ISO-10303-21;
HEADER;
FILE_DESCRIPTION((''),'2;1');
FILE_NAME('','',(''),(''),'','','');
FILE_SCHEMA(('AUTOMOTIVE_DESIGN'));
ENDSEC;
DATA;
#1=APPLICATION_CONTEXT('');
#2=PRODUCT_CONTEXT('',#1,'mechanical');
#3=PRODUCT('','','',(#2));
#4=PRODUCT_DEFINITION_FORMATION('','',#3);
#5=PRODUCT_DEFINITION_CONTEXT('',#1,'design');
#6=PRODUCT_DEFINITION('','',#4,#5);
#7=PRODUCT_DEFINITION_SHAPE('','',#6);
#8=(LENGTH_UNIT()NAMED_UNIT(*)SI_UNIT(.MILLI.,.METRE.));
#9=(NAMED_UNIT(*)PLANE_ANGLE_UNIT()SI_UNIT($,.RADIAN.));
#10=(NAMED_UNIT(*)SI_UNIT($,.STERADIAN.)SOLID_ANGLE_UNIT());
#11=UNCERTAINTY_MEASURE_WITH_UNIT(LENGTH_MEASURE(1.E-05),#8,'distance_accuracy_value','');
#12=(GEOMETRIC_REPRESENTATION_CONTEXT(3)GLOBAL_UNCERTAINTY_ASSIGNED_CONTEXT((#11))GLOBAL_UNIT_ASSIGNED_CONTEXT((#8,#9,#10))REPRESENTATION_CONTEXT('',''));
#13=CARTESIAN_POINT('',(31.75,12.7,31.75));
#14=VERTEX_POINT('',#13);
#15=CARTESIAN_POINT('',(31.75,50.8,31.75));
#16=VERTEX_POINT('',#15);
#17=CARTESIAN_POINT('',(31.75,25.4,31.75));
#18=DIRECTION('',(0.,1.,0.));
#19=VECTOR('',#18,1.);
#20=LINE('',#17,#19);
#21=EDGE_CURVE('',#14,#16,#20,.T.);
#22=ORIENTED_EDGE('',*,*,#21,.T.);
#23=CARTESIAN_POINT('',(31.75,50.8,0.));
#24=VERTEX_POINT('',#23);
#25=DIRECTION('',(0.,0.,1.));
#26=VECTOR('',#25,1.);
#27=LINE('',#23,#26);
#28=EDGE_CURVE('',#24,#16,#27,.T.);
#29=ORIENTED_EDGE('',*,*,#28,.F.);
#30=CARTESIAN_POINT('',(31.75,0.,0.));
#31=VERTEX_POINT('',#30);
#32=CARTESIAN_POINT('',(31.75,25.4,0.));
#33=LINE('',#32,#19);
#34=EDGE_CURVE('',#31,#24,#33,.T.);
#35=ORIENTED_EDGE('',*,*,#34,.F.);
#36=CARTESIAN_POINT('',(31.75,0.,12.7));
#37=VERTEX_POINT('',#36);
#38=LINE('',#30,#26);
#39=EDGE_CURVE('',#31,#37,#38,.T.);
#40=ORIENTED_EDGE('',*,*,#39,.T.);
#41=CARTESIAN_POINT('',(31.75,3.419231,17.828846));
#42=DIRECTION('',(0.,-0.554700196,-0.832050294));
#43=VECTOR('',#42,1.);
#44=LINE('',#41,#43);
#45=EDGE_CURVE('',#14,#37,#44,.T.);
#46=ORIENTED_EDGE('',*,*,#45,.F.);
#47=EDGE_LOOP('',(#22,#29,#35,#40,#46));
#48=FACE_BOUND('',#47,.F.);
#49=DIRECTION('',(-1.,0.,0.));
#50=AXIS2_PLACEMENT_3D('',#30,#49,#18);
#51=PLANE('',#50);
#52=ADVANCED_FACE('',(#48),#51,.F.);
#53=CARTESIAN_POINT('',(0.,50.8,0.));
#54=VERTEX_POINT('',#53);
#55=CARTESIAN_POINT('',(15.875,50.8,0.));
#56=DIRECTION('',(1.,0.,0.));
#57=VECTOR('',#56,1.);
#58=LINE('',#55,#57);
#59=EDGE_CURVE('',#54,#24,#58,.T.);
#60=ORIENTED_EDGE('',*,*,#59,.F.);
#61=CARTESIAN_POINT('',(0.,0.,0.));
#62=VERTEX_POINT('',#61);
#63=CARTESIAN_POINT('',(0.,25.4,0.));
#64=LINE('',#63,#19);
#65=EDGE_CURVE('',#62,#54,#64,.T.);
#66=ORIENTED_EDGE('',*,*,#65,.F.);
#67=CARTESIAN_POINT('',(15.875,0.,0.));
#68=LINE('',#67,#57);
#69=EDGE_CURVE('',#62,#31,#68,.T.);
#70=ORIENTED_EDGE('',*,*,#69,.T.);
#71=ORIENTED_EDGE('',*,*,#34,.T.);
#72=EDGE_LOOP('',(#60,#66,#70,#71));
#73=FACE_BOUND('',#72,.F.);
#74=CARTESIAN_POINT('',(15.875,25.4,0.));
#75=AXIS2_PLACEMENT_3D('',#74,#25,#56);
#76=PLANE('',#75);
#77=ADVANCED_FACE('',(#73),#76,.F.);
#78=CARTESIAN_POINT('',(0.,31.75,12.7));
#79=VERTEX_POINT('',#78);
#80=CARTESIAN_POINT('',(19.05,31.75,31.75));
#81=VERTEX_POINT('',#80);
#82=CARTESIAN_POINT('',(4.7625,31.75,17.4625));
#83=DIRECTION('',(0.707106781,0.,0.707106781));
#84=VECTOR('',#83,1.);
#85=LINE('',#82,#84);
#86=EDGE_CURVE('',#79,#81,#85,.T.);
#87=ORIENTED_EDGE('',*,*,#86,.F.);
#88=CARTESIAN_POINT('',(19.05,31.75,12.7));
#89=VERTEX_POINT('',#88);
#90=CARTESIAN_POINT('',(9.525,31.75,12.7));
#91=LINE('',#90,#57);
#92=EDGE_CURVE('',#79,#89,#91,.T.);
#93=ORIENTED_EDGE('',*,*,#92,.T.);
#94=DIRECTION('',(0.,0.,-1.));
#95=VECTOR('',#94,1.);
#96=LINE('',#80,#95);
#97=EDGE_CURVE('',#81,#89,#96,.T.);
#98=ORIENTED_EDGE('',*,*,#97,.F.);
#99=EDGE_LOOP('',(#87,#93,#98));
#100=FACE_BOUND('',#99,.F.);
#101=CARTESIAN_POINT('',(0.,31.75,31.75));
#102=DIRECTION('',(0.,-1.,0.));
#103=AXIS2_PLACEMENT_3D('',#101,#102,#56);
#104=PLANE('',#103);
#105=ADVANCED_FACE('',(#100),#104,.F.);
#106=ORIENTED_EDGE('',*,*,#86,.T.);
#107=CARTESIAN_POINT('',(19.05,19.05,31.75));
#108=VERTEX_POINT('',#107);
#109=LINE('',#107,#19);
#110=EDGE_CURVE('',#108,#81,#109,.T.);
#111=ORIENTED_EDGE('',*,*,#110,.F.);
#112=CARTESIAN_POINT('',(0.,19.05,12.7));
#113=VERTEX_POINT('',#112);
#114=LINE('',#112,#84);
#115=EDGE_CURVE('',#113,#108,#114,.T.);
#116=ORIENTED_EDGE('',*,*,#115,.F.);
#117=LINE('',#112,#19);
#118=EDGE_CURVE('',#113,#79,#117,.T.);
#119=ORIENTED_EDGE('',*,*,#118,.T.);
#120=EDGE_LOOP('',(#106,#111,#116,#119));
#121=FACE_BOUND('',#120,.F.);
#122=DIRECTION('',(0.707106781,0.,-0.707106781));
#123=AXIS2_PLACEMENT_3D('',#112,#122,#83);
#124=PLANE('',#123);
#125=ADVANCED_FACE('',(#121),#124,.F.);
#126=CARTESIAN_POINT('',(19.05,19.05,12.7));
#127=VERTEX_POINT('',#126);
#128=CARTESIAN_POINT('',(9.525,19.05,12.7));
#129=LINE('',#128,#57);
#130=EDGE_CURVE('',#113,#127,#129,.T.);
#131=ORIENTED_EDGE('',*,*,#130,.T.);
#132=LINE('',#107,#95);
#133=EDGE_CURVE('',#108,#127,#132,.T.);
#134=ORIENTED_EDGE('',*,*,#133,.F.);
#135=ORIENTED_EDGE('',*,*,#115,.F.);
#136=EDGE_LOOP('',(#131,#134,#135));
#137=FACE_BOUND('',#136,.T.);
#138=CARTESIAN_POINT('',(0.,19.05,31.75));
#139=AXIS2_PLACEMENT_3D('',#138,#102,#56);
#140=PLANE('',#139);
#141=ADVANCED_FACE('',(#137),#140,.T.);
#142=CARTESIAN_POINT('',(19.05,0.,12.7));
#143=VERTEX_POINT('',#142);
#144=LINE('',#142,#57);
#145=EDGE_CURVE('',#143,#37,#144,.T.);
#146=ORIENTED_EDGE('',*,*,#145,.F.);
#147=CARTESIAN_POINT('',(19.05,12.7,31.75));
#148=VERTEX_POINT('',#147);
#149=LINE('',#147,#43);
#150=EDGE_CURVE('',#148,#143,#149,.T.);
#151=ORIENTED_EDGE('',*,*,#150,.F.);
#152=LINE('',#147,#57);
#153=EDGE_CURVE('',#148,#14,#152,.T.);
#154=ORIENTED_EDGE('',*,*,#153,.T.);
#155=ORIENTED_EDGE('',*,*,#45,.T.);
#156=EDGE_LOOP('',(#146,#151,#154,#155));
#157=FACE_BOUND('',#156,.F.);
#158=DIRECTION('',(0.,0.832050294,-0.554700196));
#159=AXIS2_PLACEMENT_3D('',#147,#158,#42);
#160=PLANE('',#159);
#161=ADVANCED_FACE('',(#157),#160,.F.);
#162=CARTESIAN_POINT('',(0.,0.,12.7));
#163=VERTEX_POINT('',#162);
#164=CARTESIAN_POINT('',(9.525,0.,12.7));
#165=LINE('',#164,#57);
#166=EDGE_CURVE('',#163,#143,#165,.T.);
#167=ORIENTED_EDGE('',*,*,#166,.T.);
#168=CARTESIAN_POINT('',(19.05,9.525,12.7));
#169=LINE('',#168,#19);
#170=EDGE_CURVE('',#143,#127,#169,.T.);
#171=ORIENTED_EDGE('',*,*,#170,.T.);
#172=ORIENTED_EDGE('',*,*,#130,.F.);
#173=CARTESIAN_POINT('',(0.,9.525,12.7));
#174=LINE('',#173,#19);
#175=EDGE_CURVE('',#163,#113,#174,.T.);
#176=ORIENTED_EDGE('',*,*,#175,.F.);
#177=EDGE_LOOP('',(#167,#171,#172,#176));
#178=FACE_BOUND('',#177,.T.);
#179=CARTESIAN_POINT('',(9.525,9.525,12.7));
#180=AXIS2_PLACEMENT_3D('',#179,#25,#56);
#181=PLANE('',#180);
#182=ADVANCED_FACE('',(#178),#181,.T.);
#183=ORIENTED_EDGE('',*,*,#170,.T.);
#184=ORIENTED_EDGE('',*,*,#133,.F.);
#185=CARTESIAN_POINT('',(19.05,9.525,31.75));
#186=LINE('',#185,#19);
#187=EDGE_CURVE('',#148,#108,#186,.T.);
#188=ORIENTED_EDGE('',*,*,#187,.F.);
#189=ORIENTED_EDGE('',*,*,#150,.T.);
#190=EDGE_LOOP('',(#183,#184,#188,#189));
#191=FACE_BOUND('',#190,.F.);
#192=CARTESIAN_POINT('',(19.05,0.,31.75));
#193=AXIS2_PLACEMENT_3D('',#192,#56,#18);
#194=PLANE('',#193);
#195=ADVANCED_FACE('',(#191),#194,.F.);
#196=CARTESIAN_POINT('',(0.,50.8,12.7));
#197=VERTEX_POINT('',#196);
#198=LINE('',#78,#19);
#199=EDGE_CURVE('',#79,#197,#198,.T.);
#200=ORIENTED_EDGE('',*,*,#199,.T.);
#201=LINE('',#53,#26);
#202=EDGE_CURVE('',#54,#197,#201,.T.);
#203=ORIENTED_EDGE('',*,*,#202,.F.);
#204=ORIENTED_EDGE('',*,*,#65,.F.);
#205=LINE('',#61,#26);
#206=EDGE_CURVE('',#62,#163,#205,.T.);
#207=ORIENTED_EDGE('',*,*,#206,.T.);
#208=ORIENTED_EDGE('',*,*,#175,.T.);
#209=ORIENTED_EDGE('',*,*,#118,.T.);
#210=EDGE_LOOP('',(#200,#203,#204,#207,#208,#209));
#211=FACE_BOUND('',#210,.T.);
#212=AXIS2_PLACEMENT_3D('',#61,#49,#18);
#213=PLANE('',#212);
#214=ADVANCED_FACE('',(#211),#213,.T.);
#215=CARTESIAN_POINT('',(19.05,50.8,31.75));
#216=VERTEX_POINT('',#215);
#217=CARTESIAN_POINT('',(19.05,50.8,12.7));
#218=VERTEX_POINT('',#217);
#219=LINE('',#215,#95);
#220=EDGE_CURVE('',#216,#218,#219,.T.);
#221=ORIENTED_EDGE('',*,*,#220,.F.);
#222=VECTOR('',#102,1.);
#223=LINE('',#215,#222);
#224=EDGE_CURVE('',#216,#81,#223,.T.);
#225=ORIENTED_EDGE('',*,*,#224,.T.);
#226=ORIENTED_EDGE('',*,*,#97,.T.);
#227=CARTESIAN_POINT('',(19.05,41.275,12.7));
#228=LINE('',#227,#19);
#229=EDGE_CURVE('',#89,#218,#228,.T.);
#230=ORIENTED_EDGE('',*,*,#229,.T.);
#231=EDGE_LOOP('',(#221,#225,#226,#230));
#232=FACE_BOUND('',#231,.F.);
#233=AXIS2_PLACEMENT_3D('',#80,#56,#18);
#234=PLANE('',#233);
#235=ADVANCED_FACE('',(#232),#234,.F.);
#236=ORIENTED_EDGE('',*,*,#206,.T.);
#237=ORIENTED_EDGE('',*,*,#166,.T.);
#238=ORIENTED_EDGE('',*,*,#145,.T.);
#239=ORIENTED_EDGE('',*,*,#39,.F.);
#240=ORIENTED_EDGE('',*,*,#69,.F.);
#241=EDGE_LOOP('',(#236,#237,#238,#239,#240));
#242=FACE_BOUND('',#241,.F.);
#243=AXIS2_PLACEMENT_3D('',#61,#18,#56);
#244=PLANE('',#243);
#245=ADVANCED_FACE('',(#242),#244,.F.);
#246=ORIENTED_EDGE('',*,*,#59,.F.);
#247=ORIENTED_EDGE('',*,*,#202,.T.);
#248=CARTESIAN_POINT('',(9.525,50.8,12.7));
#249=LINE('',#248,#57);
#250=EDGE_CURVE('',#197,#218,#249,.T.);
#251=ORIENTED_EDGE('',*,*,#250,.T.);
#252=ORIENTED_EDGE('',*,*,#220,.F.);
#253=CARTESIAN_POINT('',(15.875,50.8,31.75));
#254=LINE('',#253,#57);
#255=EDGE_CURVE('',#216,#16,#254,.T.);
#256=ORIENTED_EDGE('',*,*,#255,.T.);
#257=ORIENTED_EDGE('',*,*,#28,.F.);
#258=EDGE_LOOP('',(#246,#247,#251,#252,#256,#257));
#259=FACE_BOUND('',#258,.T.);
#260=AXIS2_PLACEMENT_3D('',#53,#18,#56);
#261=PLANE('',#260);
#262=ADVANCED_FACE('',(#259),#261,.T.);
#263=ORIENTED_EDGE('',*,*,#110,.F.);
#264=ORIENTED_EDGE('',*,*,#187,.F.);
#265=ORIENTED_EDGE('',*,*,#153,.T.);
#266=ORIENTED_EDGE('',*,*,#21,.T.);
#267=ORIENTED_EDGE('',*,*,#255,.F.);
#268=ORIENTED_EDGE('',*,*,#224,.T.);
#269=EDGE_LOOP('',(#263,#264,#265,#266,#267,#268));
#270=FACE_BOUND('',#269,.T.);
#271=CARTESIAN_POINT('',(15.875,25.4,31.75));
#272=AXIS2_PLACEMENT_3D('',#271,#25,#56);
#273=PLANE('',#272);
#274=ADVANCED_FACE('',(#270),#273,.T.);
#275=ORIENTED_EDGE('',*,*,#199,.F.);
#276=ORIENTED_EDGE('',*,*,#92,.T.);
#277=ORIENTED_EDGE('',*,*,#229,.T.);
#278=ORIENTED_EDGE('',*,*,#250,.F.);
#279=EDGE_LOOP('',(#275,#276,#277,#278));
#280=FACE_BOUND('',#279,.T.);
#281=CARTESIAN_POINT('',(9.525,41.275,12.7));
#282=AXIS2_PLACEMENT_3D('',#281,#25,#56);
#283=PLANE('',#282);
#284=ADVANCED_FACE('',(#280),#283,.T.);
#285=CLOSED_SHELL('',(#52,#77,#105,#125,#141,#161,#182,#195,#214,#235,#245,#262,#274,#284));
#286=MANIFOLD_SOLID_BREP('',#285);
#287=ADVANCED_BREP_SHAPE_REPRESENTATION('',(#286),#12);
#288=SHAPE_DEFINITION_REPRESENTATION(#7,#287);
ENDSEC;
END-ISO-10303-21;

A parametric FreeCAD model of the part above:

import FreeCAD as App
import Part
import Sketcher
from FreeCAD import Vector
Q = App.Units.Quantity


def add_polygon(sketch, points):
    """Adds a closed chain of lines whose ends are joined by coincident constraints."""
    first, n = sketch.GeometryCount, len(points)
    for a, b in zip(points, points[1:] + points[:1]):
        sketch.addGeometry(Part.LineSegment(App.Vector(*a, 0), App.Vector(*b, 0)), False)
    for i in range(n):
        sketch.addConstraint(Sketcher.Constraint("Coincident", first + i, 2, first + (i + 1) % n, 1))

doc = App.newDocument("Part")
body = doc.addObject("PartDesign::Body", "Body")

# Sketch on XY plane
sketch1 = doc.addObject("Sketcher::SketchObject", "Sketch")
body.addObject(sketch1)
sketch1.AttachmentSupport = (doc.XY_Plane, [""])
sketch1.MapMode = "FlatFace"
add_polygon(sketch1, [(0, 51), (0, 0), (32, 0), (32, 51)])  # lines 0-3
sketch1.addConstraint([
    Sketcher.Constraint("Vertical", 0),
    Sketcher.Constraint("Horizontal", 1),
    Sketcher.Constraint("Vertical", 2),
    Sketcher.Constraint("Horizontal", 3),
    Sketcher.Constraint("Coincident", 0, 2, -1, 1),
    Sketcher.Constraint("DistanceY", 0, 2, 0, 1, Q("2 in")),
    Sketcher.Constraint("DistanceX", 1, 1, 1, 2, Q("1.25 in")),
])
pad1 = doc.addObject("PartDesign::Pad", "Pad")
body.addObject(pad1)
pad1.Profile = sketch1
pad1.Length = Q("1.25 in")

# Sketch on XY plane
sketch2 = doc.addObject("Sketcher::SketchObject", "Sketch001")
body.addObject(sketch2)
sketch2.AttachmentSupport = (doc.XY_Plane, [""])
sketch2.MapMode = "FlatFace"
sketch2.AttachmentOffset = App.Placement(Vector(0, 0, 1.25 * 25.4), App.Rotation())
add_polygon(sketch2, [(0, 51), (0, 32), (19, 32), (19, 51)])  # lines 0-3
add_polygon(sketch2, [(0, 19), (0, 0), (19, 0), (19, 19)])  # lines 4-7
sketch2.addConstraint([
    Sketcher.Constraint("Vertical", 0),
    Sketcher.Constraint("Horizontal", 1),
    Sketcher.Constraint("Vertical", 2),
    Sketcher.Constraint("Horizontal", 3),
    Sketcher.Constraint("Vertical", 4),
    Sketcher.Constraint("Horizontal", 5),
    Sketcher.Constraint("Vertical", 6),
    Sketcher.Constraint("Horizontal", 7),
    Sketcher.Constraint("Coincident", 4, 2, -1, 1),
    Sketcher.Constraint("PointOnObject", 0, 2, -2),
    Sketcher.Constraint("Vertical", 2, 2, 5, 2),
    Sketcher.Constraint("Equal", 7, 0),
    Sketcher.Constraint("Equal", 2, 4),
    Sketcher.Constraint("DistanceY", -1, 1, 2, 2, Q("2 in")),
    Sketcher.Constraint("DistanceX", 1, 1, 1, 2, Q("0.75 in")),
])
pocket1 = doc.addObject("PartDesign::Pocket", "Pocket")
body.addObject(pocket1)
pocket1.Profile = sketch2
pocket1.Length = Q("0.75 in")

# Sketch on XZ plane
sketch3 = doc.addObject("Sketcher::SketchObject", "Sketch002")
body.addObject(sketch3)
sketch3.AttachmentSupport = (doc.XZ_Plane, [""])
sketch3.MapMode = "FlatFace"
sketch3.AttachmentOffset = App.Placement(Vector(0, 0, -0.75 * 25.4), App.Rotation())
add_polygon(sketch3, [(0, 32), (0, 13), (19, 32)])  # lines 0-2
sketch3.addConstraint([
    Sketcher.Constraint("Vertical", 0),
    Sketcher.Constraint("Horizontal", 2),
    Sketcher.Constraint("PointOnObject", 0, 2, -2),
    Sketcher.Constraint("Equal", 2, 0),
    Sketcher.Constraint("DistanceX", 2, 2, 2, 1, Q("0.75 in")),
    Sketcher.Constraint("DistanceY", -1, 1, 0, 2, Q("0.5 in")),
])
pocket2 = doc.addObject("PartDesign::Pocket", "Pocket001")
body.addObject(pocket2)
pocket2.Profile = sketch3
pocket2.Length = Q("1 in")

# Sketch on YZ plane
sketch4 = doc.addObject("Sketcher::SketchObject", "Sketch003")
body.addObject(sketch4)
sketch4.AttachmentSupport = (doc.YZ_Plane, [""])
sketch4.MapMode = "FlatFace"
sketch4.AttachmentOffset = App.Placement(Vector(0, 0, 0.75 * 25.4), App.Rotation())
add_polygon(sketch4, [(0, 13), (0, 32), (13, 32)])  # lines 0-2
sketch4.addConstraint([
    Sketcher.Constraint("Vertical", 0),
    Sketcher.Constraint("Horizontal", 1),
    Sketcher.Constraint("PointOnObject", 0, 2, -2),
    Sketcher.Constraint("DistanceX", 1, 1, 1, 2, Q("0.5 in")),
    Sketcher.Constraint("DistanceY", 0, 1, 0, 2, Q("0.75 in")),
    Sketcher.Constraint("DistanceY", -1, 1, 2, 2, Q("0.5 in")),
])
pocket3 = doc.addObject("PartDesign::Pocket", "Pocket002")
body.addObject(pocket3)
pocket3.Profile = sketch4
pocket3.Length = Q("1 in")
pocket3.Reversed = True

doc.recompute()
